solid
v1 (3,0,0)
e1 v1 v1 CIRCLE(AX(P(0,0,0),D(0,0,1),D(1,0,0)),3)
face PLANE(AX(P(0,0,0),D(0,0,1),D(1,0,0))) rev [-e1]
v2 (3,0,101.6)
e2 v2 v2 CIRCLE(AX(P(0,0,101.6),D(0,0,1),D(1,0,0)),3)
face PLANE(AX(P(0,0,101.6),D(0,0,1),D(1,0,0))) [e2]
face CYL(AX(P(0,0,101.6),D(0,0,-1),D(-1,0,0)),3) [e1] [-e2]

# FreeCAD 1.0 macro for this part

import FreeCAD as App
import Part
import Sketcher
from FreeCAD import Vector

doc = App.newDocument("Part")
body = doc.addObject("PartDesign::Body", "Body")

sketch1 = body.newObject("Sketcher::SketchObject", "Sketch")
sketch1.AttachmentSupport = (doc.getObject("XY_Plane"), [""])
sketch1.MapMode = "FlatFace"
sketch1.addGeometry(Part.Circle(Vector(0, 0, 0), Vector(0, 0, 1), 3), False)
sketch1.addConstraint(Sketcher.Constraint("Coincident", 0, 3, -1, 1))
sketch1.addConstraint(Sketcher.Constraint("Diameter", 0, 6.0))
pad1 = body.newObject("PartDesign::Pad", "Pad")
pad1.Profile = sketch1
pad1.Length = 101.6

doc.recompute()
